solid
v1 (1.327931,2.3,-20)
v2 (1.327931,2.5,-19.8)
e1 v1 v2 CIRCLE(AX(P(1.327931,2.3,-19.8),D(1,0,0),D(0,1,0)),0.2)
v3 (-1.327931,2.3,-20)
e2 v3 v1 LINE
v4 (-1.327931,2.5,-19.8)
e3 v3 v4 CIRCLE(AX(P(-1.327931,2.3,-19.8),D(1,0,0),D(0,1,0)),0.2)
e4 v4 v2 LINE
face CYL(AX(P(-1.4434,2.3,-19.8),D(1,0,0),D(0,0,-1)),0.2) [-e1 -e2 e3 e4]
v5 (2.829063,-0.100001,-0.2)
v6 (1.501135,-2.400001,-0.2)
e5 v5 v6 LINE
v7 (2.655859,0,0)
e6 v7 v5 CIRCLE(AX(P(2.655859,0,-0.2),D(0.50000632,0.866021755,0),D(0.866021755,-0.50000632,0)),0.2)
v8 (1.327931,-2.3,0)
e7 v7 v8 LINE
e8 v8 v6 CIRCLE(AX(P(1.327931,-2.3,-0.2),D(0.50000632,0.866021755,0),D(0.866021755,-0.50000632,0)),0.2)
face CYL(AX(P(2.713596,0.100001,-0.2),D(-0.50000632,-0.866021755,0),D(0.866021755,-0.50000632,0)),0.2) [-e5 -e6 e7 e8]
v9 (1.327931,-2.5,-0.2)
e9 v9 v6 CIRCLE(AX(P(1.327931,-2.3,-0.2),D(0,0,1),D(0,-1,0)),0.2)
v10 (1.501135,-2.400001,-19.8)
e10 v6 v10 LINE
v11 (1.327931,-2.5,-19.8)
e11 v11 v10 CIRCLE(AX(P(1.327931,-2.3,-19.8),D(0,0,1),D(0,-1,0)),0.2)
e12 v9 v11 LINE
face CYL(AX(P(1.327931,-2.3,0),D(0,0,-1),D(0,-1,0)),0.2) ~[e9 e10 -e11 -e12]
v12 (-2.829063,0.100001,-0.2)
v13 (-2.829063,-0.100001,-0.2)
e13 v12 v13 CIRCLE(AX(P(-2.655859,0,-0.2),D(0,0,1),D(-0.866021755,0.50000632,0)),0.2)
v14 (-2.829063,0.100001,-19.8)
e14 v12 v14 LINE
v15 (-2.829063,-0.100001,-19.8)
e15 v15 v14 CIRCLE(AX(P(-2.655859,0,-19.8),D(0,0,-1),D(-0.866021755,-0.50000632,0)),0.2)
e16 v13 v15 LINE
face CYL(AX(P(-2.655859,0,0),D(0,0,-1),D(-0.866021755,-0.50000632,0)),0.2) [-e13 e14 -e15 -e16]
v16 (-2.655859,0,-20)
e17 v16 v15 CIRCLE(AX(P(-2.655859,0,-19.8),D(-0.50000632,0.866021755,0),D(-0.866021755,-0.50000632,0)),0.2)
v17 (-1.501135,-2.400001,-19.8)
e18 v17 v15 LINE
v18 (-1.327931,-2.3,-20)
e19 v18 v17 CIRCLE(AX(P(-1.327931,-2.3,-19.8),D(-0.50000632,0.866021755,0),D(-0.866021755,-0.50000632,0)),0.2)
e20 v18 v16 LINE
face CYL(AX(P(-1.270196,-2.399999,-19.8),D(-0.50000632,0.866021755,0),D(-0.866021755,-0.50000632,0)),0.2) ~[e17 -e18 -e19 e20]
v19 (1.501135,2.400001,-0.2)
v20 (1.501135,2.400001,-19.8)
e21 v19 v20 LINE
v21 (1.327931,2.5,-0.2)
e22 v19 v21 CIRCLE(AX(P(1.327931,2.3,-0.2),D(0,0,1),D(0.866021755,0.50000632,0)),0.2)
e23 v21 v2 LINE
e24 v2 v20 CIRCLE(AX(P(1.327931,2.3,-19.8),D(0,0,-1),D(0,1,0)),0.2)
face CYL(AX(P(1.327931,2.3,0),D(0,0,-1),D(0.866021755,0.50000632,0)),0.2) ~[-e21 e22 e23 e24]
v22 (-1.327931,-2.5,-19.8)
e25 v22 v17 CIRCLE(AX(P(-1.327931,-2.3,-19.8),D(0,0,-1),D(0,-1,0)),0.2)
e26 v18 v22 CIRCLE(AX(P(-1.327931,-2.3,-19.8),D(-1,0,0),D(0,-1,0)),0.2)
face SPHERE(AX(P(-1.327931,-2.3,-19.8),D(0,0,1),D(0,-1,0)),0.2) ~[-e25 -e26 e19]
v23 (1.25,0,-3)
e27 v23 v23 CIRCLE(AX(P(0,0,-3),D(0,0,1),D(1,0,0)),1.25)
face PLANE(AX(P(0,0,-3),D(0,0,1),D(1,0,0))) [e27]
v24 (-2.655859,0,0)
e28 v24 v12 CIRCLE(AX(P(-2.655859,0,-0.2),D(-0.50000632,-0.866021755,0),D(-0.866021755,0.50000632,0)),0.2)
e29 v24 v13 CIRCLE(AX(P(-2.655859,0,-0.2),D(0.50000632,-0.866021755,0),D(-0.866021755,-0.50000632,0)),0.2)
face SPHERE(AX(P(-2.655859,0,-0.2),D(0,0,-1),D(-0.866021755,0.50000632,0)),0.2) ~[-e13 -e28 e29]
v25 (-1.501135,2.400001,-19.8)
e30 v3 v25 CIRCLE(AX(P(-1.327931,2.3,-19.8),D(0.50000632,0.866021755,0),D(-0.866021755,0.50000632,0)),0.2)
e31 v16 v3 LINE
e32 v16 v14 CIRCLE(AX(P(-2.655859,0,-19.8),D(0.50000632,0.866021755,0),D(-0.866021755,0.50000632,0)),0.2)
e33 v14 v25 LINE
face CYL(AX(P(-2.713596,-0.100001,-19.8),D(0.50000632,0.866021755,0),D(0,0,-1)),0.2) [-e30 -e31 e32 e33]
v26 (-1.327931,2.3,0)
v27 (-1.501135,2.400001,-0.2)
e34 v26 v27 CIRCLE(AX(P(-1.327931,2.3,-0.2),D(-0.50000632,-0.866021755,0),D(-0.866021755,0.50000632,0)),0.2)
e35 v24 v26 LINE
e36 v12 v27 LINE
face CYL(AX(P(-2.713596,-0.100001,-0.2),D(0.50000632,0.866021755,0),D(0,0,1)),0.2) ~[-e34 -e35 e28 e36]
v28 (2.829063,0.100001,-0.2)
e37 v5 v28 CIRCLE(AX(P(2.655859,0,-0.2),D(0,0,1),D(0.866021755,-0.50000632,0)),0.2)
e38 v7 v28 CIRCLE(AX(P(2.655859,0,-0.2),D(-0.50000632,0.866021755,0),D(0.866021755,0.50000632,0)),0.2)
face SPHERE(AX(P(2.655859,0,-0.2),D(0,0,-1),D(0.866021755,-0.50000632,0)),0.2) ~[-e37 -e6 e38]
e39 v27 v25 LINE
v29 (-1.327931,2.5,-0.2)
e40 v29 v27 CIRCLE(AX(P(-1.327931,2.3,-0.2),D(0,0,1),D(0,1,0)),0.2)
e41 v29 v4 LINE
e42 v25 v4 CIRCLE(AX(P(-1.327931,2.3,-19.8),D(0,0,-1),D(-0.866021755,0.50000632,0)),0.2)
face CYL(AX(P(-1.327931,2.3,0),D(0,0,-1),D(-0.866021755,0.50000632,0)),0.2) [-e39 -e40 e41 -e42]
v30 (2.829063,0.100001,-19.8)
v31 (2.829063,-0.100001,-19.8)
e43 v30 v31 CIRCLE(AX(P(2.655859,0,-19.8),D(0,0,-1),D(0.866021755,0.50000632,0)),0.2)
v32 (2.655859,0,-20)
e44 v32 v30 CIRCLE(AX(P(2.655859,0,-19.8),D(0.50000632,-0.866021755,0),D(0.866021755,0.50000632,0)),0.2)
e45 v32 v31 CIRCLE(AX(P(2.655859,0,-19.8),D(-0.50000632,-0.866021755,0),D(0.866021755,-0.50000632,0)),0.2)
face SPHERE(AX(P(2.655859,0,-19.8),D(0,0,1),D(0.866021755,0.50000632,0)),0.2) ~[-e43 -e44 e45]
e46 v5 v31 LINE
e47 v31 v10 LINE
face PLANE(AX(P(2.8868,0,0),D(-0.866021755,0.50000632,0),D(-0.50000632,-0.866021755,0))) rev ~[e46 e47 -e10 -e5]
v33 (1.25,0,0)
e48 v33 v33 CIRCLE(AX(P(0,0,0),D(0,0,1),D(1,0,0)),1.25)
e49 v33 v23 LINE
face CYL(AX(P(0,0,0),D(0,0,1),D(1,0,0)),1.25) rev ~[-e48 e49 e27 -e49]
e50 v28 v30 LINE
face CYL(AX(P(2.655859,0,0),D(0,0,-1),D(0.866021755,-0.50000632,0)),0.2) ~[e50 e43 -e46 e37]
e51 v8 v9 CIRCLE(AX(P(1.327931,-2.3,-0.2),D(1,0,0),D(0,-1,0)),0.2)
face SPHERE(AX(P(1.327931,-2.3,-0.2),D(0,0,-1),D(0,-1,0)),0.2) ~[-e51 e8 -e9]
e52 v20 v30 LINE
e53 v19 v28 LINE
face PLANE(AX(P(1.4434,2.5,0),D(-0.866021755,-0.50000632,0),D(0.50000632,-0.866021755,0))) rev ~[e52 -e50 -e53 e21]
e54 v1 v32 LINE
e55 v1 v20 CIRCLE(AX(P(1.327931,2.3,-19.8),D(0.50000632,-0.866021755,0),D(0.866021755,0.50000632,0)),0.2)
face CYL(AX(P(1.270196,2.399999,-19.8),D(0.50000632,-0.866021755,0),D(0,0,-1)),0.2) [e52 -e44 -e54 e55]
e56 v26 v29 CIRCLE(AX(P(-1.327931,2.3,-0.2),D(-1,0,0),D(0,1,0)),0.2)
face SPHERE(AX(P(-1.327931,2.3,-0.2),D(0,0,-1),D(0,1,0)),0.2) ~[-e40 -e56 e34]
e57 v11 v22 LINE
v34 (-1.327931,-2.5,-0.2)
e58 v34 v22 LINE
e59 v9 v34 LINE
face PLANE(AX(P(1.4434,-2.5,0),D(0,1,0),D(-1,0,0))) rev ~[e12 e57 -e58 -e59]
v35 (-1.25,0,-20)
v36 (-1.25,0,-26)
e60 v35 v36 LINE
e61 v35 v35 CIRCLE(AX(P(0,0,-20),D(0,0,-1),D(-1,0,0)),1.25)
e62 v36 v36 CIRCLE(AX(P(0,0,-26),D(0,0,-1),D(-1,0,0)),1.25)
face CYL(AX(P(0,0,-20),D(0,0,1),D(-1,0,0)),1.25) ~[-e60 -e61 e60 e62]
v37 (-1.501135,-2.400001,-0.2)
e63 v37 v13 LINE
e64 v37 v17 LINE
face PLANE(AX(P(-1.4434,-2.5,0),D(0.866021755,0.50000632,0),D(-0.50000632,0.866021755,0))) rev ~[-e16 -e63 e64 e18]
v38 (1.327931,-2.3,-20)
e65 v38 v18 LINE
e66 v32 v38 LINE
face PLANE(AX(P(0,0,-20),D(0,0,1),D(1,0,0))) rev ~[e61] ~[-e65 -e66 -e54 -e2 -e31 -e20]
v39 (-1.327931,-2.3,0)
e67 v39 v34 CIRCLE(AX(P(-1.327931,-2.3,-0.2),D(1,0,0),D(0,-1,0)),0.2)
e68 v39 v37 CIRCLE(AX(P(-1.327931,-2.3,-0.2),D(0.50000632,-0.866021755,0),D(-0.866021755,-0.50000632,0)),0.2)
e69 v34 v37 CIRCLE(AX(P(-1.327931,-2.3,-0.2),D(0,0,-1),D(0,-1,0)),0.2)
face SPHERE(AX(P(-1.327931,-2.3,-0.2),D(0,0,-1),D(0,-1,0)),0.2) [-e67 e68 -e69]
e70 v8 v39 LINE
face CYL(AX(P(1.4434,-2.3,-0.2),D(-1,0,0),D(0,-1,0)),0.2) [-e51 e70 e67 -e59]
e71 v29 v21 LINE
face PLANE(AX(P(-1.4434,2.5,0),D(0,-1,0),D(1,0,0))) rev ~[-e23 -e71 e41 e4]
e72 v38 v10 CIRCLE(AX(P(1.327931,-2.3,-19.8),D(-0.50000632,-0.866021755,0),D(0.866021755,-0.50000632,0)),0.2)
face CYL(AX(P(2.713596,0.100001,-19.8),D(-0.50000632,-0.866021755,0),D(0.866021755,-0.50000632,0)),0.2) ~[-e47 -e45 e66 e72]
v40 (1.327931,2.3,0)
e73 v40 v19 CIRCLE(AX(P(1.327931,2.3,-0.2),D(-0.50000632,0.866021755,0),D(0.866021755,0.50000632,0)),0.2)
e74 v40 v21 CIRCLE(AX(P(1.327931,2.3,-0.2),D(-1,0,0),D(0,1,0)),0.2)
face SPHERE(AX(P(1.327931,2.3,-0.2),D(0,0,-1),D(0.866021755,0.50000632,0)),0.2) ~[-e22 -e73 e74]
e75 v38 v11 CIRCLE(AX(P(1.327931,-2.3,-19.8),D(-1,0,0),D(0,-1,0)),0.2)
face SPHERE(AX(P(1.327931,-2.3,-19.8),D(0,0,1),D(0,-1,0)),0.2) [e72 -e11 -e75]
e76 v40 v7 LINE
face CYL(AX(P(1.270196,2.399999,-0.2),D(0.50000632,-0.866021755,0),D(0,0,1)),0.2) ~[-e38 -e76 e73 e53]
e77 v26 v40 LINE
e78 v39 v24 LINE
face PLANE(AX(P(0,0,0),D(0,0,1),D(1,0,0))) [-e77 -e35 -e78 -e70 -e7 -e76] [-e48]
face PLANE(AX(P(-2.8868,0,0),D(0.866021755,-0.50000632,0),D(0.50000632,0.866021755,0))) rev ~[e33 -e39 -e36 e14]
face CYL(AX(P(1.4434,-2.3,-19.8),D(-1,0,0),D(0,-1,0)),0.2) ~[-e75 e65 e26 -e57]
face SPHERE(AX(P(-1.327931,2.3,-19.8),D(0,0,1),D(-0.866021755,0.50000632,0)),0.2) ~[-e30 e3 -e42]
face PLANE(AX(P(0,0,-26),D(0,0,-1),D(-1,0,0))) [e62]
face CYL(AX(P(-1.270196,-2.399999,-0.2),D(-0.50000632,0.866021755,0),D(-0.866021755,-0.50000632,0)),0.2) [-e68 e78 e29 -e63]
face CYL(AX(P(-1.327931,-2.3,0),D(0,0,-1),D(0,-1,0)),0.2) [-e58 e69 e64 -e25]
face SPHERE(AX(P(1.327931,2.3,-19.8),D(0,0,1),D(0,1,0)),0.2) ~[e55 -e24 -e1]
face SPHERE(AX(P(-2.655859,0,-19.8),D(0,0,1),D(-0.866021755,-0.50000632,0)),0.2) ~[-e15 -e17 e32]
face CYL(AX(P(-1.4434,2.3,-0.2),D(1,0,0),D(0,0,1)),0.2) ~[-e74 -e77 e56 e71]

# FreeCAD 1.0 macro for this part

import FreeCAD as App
import Part
import Sketcher
from FreeCAD import Vector
Q = App.Units.Quantity


def edges_at(feature, points):
    """Names of the edges that pass closest to the given points."""
    edges = feature.Shape.Edges
    near = lambda p: min(range(len(edges)), key=lambda i: edges[i].distToShape(Part.Vertex(*p))[0])
    return sorted({f"Edge{near(p) + 1}" for p in points})


def add_polygon(sketch, points):
    """Adds a closed chain of lines whose ends are joined by coincident constraints."""
    first, n = sketch.GeometryCount, len(points)
    for a, b in zip(points, points[1:] + points[:1]):
        sketch.addGeometry(Part.LineSegment(App.Vector(*a, 0), App.Vector(*b, 0)), False)
    for i in range(n):
        sketch.addConstraint(Sketcher.Constraint("Coincident", first + i, 2, first + (i + 1) % n, 1))

doc = App.newDocument("Part")
params = doc.addObject("Spreadsheet::Sheet", "Params")
for row, (alias, value) in enumerate([
    ("pad1_length", "20 mm"),
    ("sketch2_diameter", "2.5 mm"),
    ("pocket1_length", "3 mm"),
    ("sketch3_diameter", "2.5 mm"),
    ("pad2_length", "6 mm"),
    ("fillet_radius", "0.2 mm"),
    ("fillet2_radius", "0.2 mm"),
], start=1):
    params.set(f"A{row}", alias)
    params.set(f"B{row}", "=" + value)
    params.setAlias(f"B{row}", alias)

body = doc.addObject("PartDesign::Body", "Body")

sketch1 = body.newObject("Sketcher::SketchObject", "Sketch")
sketch1.AttachmentSupport = (doc.getObject("XY_Plane"), [""])
sketch1.MapMode = "FlatFace"
add_polygon(sketch1, [(-1.4434, -2.5), (1.4434, -2.5), (2.8868, 0), (1.4434, 2.5), (-1.4434, 2.5), (-2.8868, 0)])
sketch1.addConstraint([
    Sketcher.Constraint("Horizontal", 0),
    Sketcher.Constraint("Horizontal", 3),
    Sketcher.Constraint("Symmetric", 0, 2, 3, 2, -1, 1),
    Sketcher.Constraint("Symmetric", 1, 2, 4, 2, -1, 1),
    Sketcher.Constraint("PointOnObject", 1, 2, -1),
    Sketcher.Constraint("Parallel", 2, 5),
    Sketcher.Constraint("Vertical", 0, 2, 2, 2),
    Sketcher.Constraint("DistanceY", 0, 2, 2, 2, Q("5 mm")),
    Sketcher.Constraint("Angle", 1, Q("59.9996 deg")),
    Sketcher.Constraint("DistanceX", 0, 1, 0, 2, Q("2.8868 mm")),
])
pad1 = body.newObject("PartDesign::Pad", "Pad")
pad1.Profile = sketch1
pad1.setExpression("Length", "Params.pad1_length")
pad1.Reversed = True

sketch2 = body.newObject("Sketcher::SketchObject", "Sketch001")
sketch2.AttachmentSupport = (doc.getObject("XY_Plane"), [""])
sketch2.MapMode = "FlatFace"
sketch2.addGeometry(Part.Circle(Vector(0, 0, 0), Vector(0, 0, 1), 1.25), False)
sketch2.addConstraint([
    Sketcher.Constraint("Coincident", 0, 3, -1, 1),
    Sketcher.Constraint("Diameter", 0, Q("2.5 mm")),
])
sketch2.setExpression("Constraints[1]", "Params.sketch2_diameter")
pocket1 = body.newObject("PartDesign::Pocket", "Pocket")
pocket1.Profile = sketch2
pocket1.setExpression("Length", "Params.pocket1_length")

sketch3 = body.newObject("Sketcher::SketchObject", "Sketch002")
sketch3.AttachmentSupport = (doc.getObject("XY_Plane"), [""])
sketch3.MapMode = "FlatFace"
sketch3.AttachmentOffset = App.Placement(Vector(0, 0, -20), App.Rotation())
sketch3.addGeometry(Part.Circle(Vector(0, 0, 0), Vector(0, 0, 1), 1.25), False)
sketch3.addConstraint([
    Sketcher.Constraint("Coincident", 0, 3, -1, 1),
    Sketcher.Constraint("Diameter", 0, Q("2.5 mm")),
])
sketch3.setExpression("Constraints[1]", "Params.sketch3_diameter")
pad2 = body.newObject("PartDesign::Pad", "Pad001")
pad2.Profile = sketch3
pad2.setExpression("Length", "Params.pad2_length")
pad2.Reversed = True
doc.recompute()

fillet = body.newObject("PartDesign::Fillet", "Fillet")
fillet.Base = (pad2, edges_at(pad2, [
    (0, -2.5, -20),
    (-2.165, -1.25, -20),
    (-2.165, 1.25, -20),
    (0, 2.5, -20),
    (2.165, 1.25, -20),
    (2.165, -1.25, -20),
    (0, -2.5, 0),
    (2.165, -1.25, 0),
    (2.165, 1.25, 0),
    (0, 2.5, 0),
    (-2.165, 1.25, 0),
    (-2.165, -1.25, 0),
]))
fillet.setExpression("Radius", "Params.fillet_radius")
doc.recompute()

fillet2 = body.newObject("PartDesign::Fillet", "Fillet001")
fillet2.Base = (fillet, edges_at(fillet, [
    (-2.887, 0, -10),
    (-1.443, 2.5, -10),
    (1.443, 2.5, -10),
    (2.887, 0, -10),
    (1.443, -2.5, -10),
    (-1.443, -2.5, -10),
]))
fillet2.setExpression("Radius", "Params.fillet2_radius")

doc.recompute()
